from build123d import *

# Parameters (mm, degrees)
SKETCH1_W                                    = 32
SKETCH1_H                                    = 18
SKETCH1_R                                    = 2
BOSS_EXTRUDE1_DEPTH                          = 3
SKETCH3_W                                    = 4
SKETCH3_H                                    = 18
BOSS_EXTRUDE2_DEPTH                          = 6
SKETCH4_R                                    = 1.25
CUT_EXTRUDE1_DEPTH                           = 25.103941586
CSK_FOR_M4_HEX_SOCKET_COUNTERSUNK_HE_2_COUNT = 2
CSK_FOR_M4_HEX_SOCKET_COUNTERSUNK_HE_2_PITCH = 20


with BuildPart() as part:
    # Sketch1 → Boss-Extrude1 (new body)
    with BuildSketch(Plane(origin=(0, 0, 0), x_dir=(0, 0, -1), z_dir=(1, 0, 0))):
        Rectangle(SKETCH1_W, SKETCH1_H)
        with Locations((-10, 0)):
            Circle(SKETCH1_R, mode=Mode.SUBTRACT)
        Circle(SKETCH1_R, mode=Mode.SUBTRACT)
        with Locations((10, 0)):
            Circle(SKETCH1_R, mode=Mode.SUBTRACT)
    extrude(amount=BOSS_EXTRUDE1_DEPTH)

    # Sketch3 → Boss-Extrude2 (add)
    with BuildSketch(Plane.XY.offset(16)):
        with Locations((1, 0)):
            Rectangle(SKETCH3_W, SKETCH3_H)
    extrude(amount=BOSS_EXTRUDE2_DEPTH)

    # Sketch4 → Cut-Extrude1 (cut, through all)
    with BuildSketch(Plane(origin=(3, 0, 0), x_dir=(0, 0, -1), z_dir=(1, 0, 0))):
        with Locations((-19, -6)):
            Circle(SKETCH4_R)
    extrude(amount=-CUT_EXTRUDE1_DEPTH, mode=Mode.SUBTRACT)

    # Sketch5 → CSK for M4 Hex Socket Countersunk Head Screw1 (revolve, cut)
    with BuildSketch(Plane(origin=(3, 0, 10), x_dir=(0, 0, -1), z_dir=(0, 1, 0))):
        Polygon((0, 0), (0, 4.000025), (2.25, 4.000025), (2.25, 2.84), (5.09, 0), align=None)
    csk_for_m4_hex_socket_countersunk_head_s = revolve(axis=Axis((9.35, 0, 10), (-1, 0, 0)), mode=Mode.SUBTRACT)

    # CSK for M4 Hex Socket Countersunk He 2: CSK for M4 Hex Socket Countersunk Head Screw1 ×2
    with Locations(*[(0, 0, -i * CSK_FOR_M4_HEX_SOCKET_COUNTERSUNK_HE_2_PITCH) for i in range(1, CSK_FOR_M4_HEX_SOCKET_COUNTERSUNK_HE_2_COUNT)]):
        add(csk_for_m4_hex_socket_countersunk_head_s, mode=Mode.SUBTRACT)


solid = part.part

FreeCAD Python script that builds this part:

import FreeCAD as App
import Part
import Sketcher
from FreeCAD import Vector
Q = App.Units.Quantity


def add_polygon(sketch, points):
    """Adds a closed chain of lines whose ends are joined by coincident constraints."""
    first, n = sketch.GeometryCount, len(points)
    for a, b in zip(points, points[1:] + points[:1]):
        sketch.addGeometry(Part.LineSegment(App.Vector(*a, 0), App.Vector(*b, 0)), False)
    for i in range(n):
        sketch.addConstraint(Sketcher.Constraint("Coincident", first + i, 2, first + (i + 1) % n, 1))

doc = App.newDocument("Part")
body = doc.addObject("PartDesign::Body", "Body")

sketch1 = body.newObject("Sketcher::SketchObject", "Sketch")
sketch1.AttachmentSupport = (doc.getObject("YZ_Plane"), [""])
sketch1.MapMode = "FlatFace"
add_polygon(sketch1, [(9, 16), (-9, 16), (-9, -16), (9, -16)])
sketch1.addGeometry(Part.Circle(Vector(0, 10, 0), Vector(0, 0, 1), 2), False)
sketch1.addGeometry(Part.Circle(Vector(0, 0, 0), Vector(0, 0, 1), 2), False)
sketch1.addGeometry(Part.Circle(Vector(0, -10, 0), Vector(0, 0, 1), 2), False)
sketch1.addConstraint([
    Sketcher.Constraint("Horizontal", 0),
    Sketcher.Constraint("Vertical", 1),
    Sketcher.Constraint("Horizontal", 2),
    Sketcher.Constraint("Vertical", 3),
    Sketcher.Constraint("Coincident", 5, 3, -1, 1),
    Sketcher.Constraint("Equal", 4, 5),
    Sketcher.Constraint("Equal", 5, 6),
    Sketcher.Constraint("Symmetric", 4, 3, 6, 3, -1, 1),
    Sketcher.Constraint("Symmetric", 0, 2, 2, 2, -1, 1),
    Sketcher.Constraint("PointOnObject", 4, 3, -2),
    Sketcher.Constraint("Diameter", 4, Q("4 mm")),
    Sketcher.Constraint("DistanceX", 0, 2, 0, 1, Q("18 mm")),
    Sketcher.Constraint("DistanceY", 1, 2, 1, 1, Q("32 mm")),
    Sketcher.Constraint("DistanceY", -1, 1, 4, 3, Q("10 mm")),
])
pad1 = body.newObject("PartDesign::Pad", "Pad")
pad1.Profile = sketch1
pad1.Length = 3

sketch2 = body.newObject("Sketcher::SketchObject", "Sketch001")
sketch2.AttachmentSupport = (doc.getObject("XY_Plane"), [""])
sketch2.MapMode = "FlatFace"
sketch2.AttachmentOffset = App.Placement(Vector(0, 0, 16), App.Rotation())
add_polygon(sketch2, [(-1, 9), (-1, -9), (3, -9), (3, 9)])
sketch2.addConstraint([
    Sketcher.Constraint("Vertical", 0),
    Sketcher.Constraint("Horizontal", 1),
    Sketcher.Constraint("Vertical", 2),
    Sketcher.Constraint("Horizontal", 3),
    Sketcher.Constraint("DistanceX", 1, 1, 1, 2, Q("4 mm")),
    Sketcher.Constraint("DistanceY", 0, 2, 0, 1, Q("18 mm")),
    Sketcher.Constraint("DistanceX", 0, 2, -1, 1, Q("1 mm")),
    Sketcher.Constraint("DistanceY", 0, 2, -1, 1, Q("9 mm")),
])
pad2 = body.newObject("PartDesign::Pad", "Pad001")
pad2.Profile = sketch2
pad2.Length = 6

sketch3 = body.newObject("Sketcher::SketchObject", "Sketch002")
sketch3.AttachmentSupport = (doc.getObject("YZ_Plane"), [""])
sketch3.MapMode = "FlatFace"
sketch3.AttachmentOffset = App.Placement(Vector(0, 0, 3), App.Rotation())
sketch3.addGeometry(Part.Circle(Vector(-6, 19, 0), Vector(0, 0, 1), 1.2), False)
sketch3.addConstraint([
    Sketcher.Constraint("Diameter", 0, Q("2.5 mm")),
    Sketcher.Constraint("DistanceX", 0, 3, -1, 1, Q("6 mm")),
    Sketcher.Constraint("DistanceY", -1, 1, 0, 3, Q("19 mm")),
])
pocket1 = body.newObject("PartDesign::Pocket", "Pocket")
pocket1.Profile = sketch3
pocket1.Type = "ThroughAll"

sketch4 = body.newObject("Sketcher::SketchObject", "Sketch003")
sketch4.AttachmentSupport = (doc.getObject("XZ_Plane"), [""])
sketch4.MapMode = "FlatFace"
add_polygon(sketch4, [(-1, 10), (3, 10), (3, 4.9), (0.2, 7.8), (-1, 7.8)])
sketch4.addGeometry(Part.LineSegment(Vector(3, 10, 0), Vector(-1, 10, 0)), True)
sketch4.addConstraint([
    Sketcher.Constraint("Horizontal", 0),
    Sketcher.Constraint("Vertical", 1),
    Sketcher.Constraint("Horizontal", 3),
    Sketcher.Constraint("Vertical", 4),
    Sketcher.Constraint("Horizontal", 5),
    Sketcher.Constraint("Coincident", 5, 1, 0, 2),
    Sketcher.Constraint("Vertical", 3, 2, 5, 2),
    Sketcher.Constraint("Angle", 2, Q("135 deg")),
    Sketcher.Constraint("DistanceX", -1, 1, 0, 2, Q("3 mm")),
    Sketcher.Constraint("DistanceY", -1, 1, 0, 2, Q("10 mm")),
    Sketcher.Constraint("DistanceY", 1, 2, 1, 1, Q("5.09 mm")),
    Sketcher.Constraint("DistanceY", 4, 1, 4, 2, Q("2.25 mm")),
    Sketcher.Constraint("DistanceX", 0, 1, 0, 2, Q("4.000025 mm")),
])
groove = body.newObject("PartDesign::Groove", "Groove")
groove.Profile = sketch4
groove.ReferenceAxis = (sketch4, ["Axis0"])
groove.Angle = 360
doc.recompute()

linearpattern = body.newObject("PartDesign::LinearPattern", "LinearPattern")
linearpattern.Originals = [groove]
linearpattern.Direction = (doc.getObject("Z_Axis"), [""])
linearpattern.Mode = "offset"
linearpattern.Offset = 20
linearpattern.Occurrences = 2
linearpattern.Reversed = True
body.Tip = linearpattern

doc.recompute()
